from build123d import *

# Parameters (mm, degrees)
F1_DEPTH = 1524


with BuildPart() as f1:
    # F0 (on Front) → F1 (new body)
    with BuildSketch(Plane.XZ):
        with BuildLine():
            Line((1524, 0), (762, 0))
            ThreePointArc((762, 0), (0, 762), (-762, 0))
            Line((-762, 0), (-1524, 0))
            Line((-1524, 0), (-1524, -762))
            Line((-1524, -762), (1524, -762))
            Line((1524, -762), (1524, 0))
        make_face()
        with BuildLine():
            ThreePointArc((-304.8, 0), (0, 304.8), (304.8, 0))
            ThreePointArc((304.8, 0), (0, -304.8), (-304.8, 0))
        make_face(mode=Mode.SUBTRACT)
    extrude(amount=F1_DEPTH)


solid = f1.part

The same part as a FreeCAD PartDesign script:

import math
import FreeCAD as App
import Part
import Sketcher
Q = App.Units.Quantity

doc = App.newDocument("Part")
body = doc.addObject("PartDesign::Body", "Body")

# Sketch on XZ plane
sketch1 = body.newObject("Sketcher::SketchObject", "Sketch")
sketch1.AttachmentSupport = (doc.getObject("XZ_Plane"), [""])
sketch1.MapMode = "FlatFace"
sketch1.addGeometry([
    Part.LineSegment(App.Vector(1524, 0, 0), App.Vector(762, 0, 0)),  # 0
    Part.ArcOfCircle(Part.Circle(App.Vector(0, 0, 0), App.Vector(0, 0, 1), 762), math.radians(0), math.radians(180)),  # 1
    Part.LineSegment(App.Vector(-762, 0, 0), App.Vector(-1524, 0, 0)),  # 2
    Part.LineSegment(App.Vector(-1524, 0, 0), App.Vector(-1524, -762, 0)),  # 3
    Part.LineSegment(App.Vector(-1524, -762, 0), App.Vector(1524, -762, 0)),  # 4
    Part.LineSegment(App.Vector(1524, -762, 0), App.Vector(1524, 0, 0)),  # 5
    Part.Circle(App.Vector(0, 0, 0), App.Vector(0, 0, 1), 305),  # 6
], False)
sketch1.addConstraint([
    Sketcher.Constraint("Coincident", 0, 2, 1, 1),
    Sketcher.Constraint("Coincident", 1, 2, 2, 1),
    Sketcher.Constraint("Coincident", 2, 2, 3, 1),
    Sketcher.Constraint("Coincident", 3, 2, 4, 1),
    Sketcher.Constraint("Coincident", 4, 2, 5, 1),
    Sketcher.Constraint("Coincident", 5, 2, 0, 1),
    Sketcher.Constraint("Horizontal", 0),
    Sketcher.Constraint("Horizontal", 2),
    Sketcher.Constraint("Vertical", 3),
    Sketcher.Constraint("Horizontal", 4),
    Sketcher.Constraint("Vertical", 5),
    Sketcher.Constraint("Coincident", 1, 3, -1, 1),
    Sketcher.Constraint("Coincident", 6, 3, -1, 1),
    Sketcher.Constraint("Symmetric", 2, 2, 5, 2, -1, 1),
    Sketcher.Constraint("PointOnObject", 0, 2, -1),
    Sketcher.Constraint("Equal", 2, 3),
    Sketcher.Constraint("Diameter", 6, Q("24 in")),
    Sketcher.Constraint("Radius", 1, Q("30 in")),
    Sketcher.Constraint("DistanceX", 0, 2, 0, 1, Q("30 in")),
])
pad1 = body.newObject("PartDesign::Pad", "Pad")
pad1.Profile = sketch1
pad1.Length = Q("60 in")

doc.recompute()
